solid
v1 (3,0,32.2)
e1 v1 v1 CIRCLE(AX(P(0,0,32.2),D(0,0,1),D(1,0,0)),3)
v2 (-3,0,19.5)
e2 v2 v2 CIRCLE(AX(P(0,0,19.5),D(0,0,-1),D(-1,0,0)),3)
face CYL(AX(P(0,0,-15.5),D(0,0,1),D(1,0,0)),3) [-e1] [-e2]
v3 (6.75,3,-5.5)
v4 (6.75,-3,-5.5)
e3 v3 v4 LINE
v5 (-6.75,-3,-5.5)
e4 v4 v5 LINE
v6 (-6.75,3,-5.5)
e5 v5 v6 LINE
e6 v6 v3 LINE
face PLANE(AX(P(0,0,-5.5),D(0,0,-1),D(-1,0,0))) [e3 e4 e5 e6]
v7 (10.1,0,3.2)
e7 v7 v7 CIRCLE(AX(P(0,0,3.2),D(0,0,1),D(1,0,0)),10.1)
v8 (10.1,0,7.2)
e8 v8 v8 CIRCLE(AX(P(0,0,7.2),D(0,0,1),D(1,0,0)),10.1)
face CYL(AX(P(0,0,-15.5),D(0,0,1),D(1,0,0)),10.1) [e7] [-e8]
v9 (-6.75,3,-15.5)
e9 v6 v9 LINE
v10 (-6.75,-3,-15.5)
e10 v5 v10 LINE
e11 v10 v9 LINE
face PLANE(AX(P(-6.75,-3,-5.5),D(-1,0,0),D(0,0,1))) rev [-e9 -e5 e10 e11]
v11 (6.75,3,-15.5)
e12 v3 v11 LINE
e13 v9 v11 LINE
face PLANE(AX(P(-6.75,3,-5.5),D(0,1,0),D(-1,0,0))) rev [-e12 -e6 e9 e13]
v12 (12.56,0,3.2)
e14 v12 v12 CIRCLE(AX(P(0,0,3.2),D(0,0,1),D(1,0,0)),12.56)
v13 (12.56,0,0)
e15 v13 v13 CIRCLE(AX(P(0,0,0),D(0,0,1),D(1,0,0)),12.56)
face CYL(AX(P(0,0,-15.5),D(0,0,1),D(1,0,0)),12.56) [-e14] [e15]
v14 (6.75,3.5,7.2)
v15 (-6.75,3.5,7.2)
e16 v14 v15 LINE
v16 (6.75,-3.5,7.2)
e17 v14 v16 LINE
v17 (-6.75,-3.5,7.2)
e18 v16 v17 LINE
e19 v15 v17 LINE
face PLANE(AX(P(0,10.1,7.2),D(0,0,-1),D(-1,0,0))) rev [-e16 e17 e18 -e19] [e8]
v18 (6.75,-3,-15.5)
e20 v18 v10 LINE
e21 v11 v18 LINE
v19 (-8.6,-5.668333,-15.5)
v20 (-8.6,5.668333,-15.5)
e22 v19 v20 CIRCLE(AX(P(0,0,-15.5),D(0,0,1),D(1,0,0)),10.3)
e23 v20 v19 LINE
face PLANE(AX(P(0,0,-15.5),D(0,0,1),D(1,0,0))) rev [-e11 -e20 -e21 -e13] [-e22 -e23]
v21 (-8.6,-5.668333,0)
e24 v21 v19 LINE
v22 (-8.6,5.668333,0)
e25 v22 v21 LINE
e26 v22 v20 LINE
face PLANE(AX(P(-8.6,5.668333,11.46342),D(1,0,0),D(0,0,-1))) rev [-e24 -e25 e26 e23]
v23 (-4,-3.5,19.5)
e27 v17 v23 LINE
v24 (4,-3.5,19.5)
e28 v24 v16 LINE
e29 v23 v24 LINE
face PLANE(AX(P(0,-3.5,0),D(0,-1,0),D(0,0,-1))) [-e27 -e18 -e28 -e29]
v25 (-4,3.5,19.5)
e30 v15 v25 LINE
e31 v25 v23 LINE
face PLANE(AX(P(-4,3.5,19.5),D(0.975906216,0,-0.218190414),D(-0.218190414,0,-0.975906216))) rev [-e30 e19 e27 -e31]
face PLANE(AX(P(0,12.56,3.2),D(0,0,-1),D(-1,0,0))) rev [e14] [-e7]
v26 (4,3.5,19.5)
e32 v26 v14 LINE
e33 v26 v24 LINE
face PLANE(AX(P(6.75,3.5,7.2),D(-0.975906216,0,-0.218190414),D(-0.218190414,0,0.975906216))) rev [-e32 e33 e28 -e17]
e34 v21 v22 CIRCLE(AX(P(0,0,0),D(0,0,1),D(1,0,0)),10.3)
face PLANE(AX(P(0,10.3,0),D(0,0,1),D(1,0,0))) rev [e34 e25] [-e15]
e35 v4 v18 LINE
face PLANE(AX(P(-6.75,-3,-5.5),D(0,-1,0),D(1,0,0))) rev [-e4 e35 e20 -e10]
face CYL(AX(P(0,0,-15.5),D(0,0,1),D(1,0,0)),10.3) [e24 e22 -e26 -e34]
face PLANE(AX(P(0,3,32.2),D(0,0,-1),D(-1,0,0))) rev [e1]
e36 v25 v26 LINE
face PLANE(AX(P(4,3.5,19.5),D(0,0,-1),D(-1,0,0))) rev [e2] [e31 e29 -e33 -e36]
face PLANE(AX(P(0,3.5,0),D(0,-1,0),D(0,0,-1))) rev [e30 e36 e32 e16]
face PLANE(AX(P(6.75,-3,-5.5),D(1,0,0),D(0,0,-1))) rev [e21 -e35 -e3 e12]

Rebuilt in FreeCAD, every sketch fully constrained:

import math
import FreeCAD as App
import Part
import Sketcher
from FreeCAD import Vector
Q = App.Units.Quantity


def add_polygon(sketch, points):
    """Adds a closed chain of lines whose ends are joined by coincident constraints."""
    first, n = sketch.GeometryCount, len(points)
    for a, b in zip(points, points[1:] + points[:1]):
        sketch.addGeometry(Part.LineSegment(App.Vector(*a, 0), App.Vector(*b, 0)), False)
    for i in range(n):
        sketch.addConstraint(Sketcher.Constraint("Coincident", first + i, 2, first + (i + 1) % n, 1))

doc = App.newDocument("Part")
body = doc.addObject("PartDesign::Body", "Body")

# Sketch on YZ plane
sketch1 = doc.addObject("Sketcher::SketchObject", "Sketch")
body.addObject(sketch1)
sketch1.AttachmentSupport = (doc.YZ_Plane, [""])
sketch1.MapMode = "FlatFace"
add_polygon(sketch1, [(0, 32.2), (0, -15.5), (10.3, -15.5), (10.3, 0), (12.56, 0), (12.56, 3.2), (10.1, 3.2), (10.1, 7.2), (3, 7.2), (3, 32.2)])  # lines 0-9
sketch1.addConstraint(Sketcher.Constraint("Vertical", 0))
sketch1.addConstraint(Sketcher.Constraint("Horizontal", 1))
sketch1.addConstraint(Sketcher.Constraint("Vertical", 2))
sketch1.addConstraint(Sketcher.Constraint("Horizontal", 3))
sketch1.addConstraint(Sketcher.Constraint("Vertical", 4))
sketch1.addConstraint(Sketcher.Constraint("Horizontal", 5))
sketch1.addConstraint(Sketcher.Constraint("Vertical", 6))
sketch1.addConstraint(Sketcher.Constraint("Horizontal", 7))
sketch1.addConstraint(Sketcher.Constraint("Vertical", 8))
sketch1.addConstraint(Sketcher.Constraint("Horizontal", 9))
sketch1.addConstraint(Sketcher.Constraint("PointOnObject", 0, 2, -2))
sketch1.addConstraint(Sketcher.Constraint("PointOnObject", 2, 2, -1))
sketch1.addConstraint(Sketcher.Constraint("DistanceX", 9, 2, 9, 1, Q("3 mm")))
sketch1.addConstraint(Sketcher.Constraint("DistanceY", 6, 1, 6, 2, Q("4 mm")))
sketch1.addConstraint(Sketcher.Constraint("DistanceY", 8, 1, 8, 2, Q("25 mm")))
sketch1.addConstraint(Sketcher.Constraint("DistanceX", 1, 1, 1, 2, Q("10.3 mm")))
sketch1.addConstraint(Sketcher.Constraint("DistanceX", 7, 2, 7, 1, Q("7.1 mm")))
sketch1.addConstraint(Sketcher.Constraint("DistanceY", 0, 2, 0, 1, Q("47.7 mm")))
sketch1.addConstraint(Sketcher.Constraint("DistanceY", 2, 1, 2, 2, Q("15.5 mm")))
sketch1.addConstraint(Sketcher.Constraint("DistanceX", 3, 1, 3, 2, Q("2.26 mm")))
revolution = doc.addObject("PartDesign::Revolution", "Revolution")
body.addObject(revolution)
revolution.Profile = sketch1
revolution.ReferenceAxis = (sketch1, ["V_Axis"])
revolution.Angle = 360

# Sketch on XZ plane
sketch2 = doc.addObject("Sketcher::SketchObject", "Sketch001")
body.addObject(sketch2)
sketch2.AttachmentSupport = (doc.XZ_Plane, [""])
sketch2.MapMode = "FlatFace"
add_polygon(sketch2, [(6.75, 7.2), (-6.75, 7.2), (-4, 19.5), (4, 19.5)])  # lines 0-3
sketch2.addConstraint(Sketcher.Constraint("Horizontal", 0))
sketch2.addConstraint(Sketcher.Constraint("Horizontal", 2))
sketch2.addConstraint(Sketcher.Constraint("Equal", 1, 3))
sketch2.addConstraint(Sketcher.Constraint("DistanceX", 2, 1, 2, 2, Q("8 mm")))
sketch2.addConstraint(Sketcher.Constraint("DistanceX", 0, 2, 0, 1, Q("13.5 mm")))
sketch2.addConstraint(Sketcher.Constraint("DistanceX", 1, 2, -1, 1, Q("4 mm")))
sketch2.addConstraint(Sketcher.Constraint("DistanceY", -1, 1, 0, 2, Q("7.2 mm")))
sketch2.addConstraint(Sketcher.Constraint("DistanceY", -1, 1, 1, 2, Q("19.5 mm")))
pad1 = doc.addObject("PartDesign::Pad", "Pad")
body.addObject(pad1)
pad1.Profile = sketch2
pad1.Length = 7
pad1.Midplane = True

# Sketch on XY plane
sketch3 = doc.addObject("Sketcher::SketchObject", "Sketch002")
body.addObject(sketch3)
sketch3.AttachmentSupport = (doc.XY_Plane, [""])
sketch3.MapMode = "FlatFace"
sketch3.AttachmentOffset = App.Placement(Vector(0, 0, -15.5), App.Rotation())
add_polygon(sketch3, [(6.75, 3), (6.75, -3), (-6.75, -3), (-6.75, 3)])  # lines 0-3
sketch3.addConstraint(Sketcher.Constraint("Vertical", 0))
sketch3.addConstraint(Sketcher.Constraint("Horizontal", 1))
sketch3.addConstraint(Sketcher.Constraint("Vertical", 2))
sketch3.addConstraint(Sketcher.Constraint("Horizontal", 3))
sketch3.addConstraint(Sketcher.Constraint("Symmetric", 0, 2, 2, 2, -1, 1))
sketch3.addConstraint(Sketcher.Constraint("DistanceY", 0, 2, 0, 1, Q("6 mm")))
sketch3.addConstraint(Sketcher.Constraint("DistanceX", 1, 2, 1, 1, Q("13.5 mm")))
pocket1 = doc.addObject("PartDesign::Pocket", "Pocket")
body.addObject(pocket1)
pocket1.Profile = sketch3
pocket1.Length = 10
pocket1.Reversed = True

# Sketch on XY plane
sketch4 = doc.addObject("Sketcher::SketchObject", "Sketch003")
body.addObject(sketch4)
sketch4.AttachmentSupport = (doc.XY_Plane, [""])
sketch4.MapMode = "FlatFace"
sketch4.AttachmentOffset = App.Placement(Vector(0, 0, -15.5), App.Rotation())
sketch4.addGeometry(Part.LineSegment(Vector(-8.6, 5.668333, 0), Vector(-8.6, -5.668333, 0)), False)
sketch4.addGeometry(Part.ArcOfCircle(Part.Circle(Vector(0, 0, 0), Vector(0, 0, 1), 10.3), math.radians(146.610784), math.radians(213.389216)), False)
sketch4.addConstraint(Sketcher.Constraint("Coincident", 0, 1, 1, 1))
sketch4.addConstraint(Sketcher.Constraint("Coincident", 1, 2, 0, 2))
sketch4.addConstraint(Sketcher.Constraint("Vertical", 0))
sketch4.addConstraint(Sketcher.Constraint("Coincident", 1, 3, -1, 1))
sketch4.addConstraint(Sketcher.Constraint("Radius", 1, Q("10.3 mm")))
sketch4.addConstraint(Sketcher.Constraint("DistanceX", 0, 1, -1, 1, Q("8.6 mm")))
pocket2 = doc.addObject("PartDesign::Pocket", "Pocket001")
body.addObject(pocket2)
pocket2.Profile = sketch4
pocket2.Length = 15.5
pocket2.Reversed = True

doc.recompute()
